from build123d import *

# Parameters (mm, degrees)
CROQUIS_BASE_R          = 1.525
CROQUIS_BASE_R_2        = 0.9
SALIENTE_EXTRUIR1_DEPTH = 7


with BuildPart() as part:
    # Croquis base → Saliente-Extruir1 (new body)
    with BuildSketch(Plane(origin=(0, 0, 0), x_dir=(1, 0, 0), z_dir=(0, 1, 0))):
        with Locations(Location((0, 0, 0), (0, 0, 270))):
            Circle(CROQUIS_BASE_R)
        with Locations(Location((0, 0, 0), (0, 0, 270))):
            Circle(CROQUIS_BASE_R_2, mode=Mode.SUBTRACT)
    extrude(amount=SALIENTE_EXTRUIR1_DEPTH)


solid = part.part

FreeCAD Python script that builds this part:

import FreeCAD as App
import Part
import Sketcher
Q = App.Units.Quantity

doc = App.newDocument("Part")
body = doc.addObject("PartDesign::Body", "Body")

# Sketch on XZ plane
sketch1 = doc.addObject("Sketcher::SketchObject", "Sketch")
body.addObject(sketch1)
sketch1.AttachmentSupport = (doc.XZ_Plane, [""])
sketch1.MapMode = "FlatFace"
sketch1.addGeometry(Part.Circle(App.Vector(0, 0, 0), App.Vector(0, 0, 1), 1.525), False)
sketch1.addGeometry(Part.Circle(App.Vector(0, 0, 0), App.Vector(0, 0, 1), 0.9), False)
sketch1.addConstraint(Sketcher.Constraint("Coincident", 0, 3, -1, 1))
sketch1.addConstraint(Sketcher.Constraint("Coincident", 1, 3, -1, 1))
sketch1.addConstraint(Sketcher.Constraint("Diameter", 1, Q("1.8 mm")))
sketch1.addConstraint(Sketcher.Constraint("Diameter", 0, Q("3.05 mm")))
pad1 = doc.addObject("PartDesign::Pad", "Pad")
body.addObject(pad1)
pad1.Profile = sketch1
pad1.Length = 7
pad1.Reversed = True

doc.recompute()
